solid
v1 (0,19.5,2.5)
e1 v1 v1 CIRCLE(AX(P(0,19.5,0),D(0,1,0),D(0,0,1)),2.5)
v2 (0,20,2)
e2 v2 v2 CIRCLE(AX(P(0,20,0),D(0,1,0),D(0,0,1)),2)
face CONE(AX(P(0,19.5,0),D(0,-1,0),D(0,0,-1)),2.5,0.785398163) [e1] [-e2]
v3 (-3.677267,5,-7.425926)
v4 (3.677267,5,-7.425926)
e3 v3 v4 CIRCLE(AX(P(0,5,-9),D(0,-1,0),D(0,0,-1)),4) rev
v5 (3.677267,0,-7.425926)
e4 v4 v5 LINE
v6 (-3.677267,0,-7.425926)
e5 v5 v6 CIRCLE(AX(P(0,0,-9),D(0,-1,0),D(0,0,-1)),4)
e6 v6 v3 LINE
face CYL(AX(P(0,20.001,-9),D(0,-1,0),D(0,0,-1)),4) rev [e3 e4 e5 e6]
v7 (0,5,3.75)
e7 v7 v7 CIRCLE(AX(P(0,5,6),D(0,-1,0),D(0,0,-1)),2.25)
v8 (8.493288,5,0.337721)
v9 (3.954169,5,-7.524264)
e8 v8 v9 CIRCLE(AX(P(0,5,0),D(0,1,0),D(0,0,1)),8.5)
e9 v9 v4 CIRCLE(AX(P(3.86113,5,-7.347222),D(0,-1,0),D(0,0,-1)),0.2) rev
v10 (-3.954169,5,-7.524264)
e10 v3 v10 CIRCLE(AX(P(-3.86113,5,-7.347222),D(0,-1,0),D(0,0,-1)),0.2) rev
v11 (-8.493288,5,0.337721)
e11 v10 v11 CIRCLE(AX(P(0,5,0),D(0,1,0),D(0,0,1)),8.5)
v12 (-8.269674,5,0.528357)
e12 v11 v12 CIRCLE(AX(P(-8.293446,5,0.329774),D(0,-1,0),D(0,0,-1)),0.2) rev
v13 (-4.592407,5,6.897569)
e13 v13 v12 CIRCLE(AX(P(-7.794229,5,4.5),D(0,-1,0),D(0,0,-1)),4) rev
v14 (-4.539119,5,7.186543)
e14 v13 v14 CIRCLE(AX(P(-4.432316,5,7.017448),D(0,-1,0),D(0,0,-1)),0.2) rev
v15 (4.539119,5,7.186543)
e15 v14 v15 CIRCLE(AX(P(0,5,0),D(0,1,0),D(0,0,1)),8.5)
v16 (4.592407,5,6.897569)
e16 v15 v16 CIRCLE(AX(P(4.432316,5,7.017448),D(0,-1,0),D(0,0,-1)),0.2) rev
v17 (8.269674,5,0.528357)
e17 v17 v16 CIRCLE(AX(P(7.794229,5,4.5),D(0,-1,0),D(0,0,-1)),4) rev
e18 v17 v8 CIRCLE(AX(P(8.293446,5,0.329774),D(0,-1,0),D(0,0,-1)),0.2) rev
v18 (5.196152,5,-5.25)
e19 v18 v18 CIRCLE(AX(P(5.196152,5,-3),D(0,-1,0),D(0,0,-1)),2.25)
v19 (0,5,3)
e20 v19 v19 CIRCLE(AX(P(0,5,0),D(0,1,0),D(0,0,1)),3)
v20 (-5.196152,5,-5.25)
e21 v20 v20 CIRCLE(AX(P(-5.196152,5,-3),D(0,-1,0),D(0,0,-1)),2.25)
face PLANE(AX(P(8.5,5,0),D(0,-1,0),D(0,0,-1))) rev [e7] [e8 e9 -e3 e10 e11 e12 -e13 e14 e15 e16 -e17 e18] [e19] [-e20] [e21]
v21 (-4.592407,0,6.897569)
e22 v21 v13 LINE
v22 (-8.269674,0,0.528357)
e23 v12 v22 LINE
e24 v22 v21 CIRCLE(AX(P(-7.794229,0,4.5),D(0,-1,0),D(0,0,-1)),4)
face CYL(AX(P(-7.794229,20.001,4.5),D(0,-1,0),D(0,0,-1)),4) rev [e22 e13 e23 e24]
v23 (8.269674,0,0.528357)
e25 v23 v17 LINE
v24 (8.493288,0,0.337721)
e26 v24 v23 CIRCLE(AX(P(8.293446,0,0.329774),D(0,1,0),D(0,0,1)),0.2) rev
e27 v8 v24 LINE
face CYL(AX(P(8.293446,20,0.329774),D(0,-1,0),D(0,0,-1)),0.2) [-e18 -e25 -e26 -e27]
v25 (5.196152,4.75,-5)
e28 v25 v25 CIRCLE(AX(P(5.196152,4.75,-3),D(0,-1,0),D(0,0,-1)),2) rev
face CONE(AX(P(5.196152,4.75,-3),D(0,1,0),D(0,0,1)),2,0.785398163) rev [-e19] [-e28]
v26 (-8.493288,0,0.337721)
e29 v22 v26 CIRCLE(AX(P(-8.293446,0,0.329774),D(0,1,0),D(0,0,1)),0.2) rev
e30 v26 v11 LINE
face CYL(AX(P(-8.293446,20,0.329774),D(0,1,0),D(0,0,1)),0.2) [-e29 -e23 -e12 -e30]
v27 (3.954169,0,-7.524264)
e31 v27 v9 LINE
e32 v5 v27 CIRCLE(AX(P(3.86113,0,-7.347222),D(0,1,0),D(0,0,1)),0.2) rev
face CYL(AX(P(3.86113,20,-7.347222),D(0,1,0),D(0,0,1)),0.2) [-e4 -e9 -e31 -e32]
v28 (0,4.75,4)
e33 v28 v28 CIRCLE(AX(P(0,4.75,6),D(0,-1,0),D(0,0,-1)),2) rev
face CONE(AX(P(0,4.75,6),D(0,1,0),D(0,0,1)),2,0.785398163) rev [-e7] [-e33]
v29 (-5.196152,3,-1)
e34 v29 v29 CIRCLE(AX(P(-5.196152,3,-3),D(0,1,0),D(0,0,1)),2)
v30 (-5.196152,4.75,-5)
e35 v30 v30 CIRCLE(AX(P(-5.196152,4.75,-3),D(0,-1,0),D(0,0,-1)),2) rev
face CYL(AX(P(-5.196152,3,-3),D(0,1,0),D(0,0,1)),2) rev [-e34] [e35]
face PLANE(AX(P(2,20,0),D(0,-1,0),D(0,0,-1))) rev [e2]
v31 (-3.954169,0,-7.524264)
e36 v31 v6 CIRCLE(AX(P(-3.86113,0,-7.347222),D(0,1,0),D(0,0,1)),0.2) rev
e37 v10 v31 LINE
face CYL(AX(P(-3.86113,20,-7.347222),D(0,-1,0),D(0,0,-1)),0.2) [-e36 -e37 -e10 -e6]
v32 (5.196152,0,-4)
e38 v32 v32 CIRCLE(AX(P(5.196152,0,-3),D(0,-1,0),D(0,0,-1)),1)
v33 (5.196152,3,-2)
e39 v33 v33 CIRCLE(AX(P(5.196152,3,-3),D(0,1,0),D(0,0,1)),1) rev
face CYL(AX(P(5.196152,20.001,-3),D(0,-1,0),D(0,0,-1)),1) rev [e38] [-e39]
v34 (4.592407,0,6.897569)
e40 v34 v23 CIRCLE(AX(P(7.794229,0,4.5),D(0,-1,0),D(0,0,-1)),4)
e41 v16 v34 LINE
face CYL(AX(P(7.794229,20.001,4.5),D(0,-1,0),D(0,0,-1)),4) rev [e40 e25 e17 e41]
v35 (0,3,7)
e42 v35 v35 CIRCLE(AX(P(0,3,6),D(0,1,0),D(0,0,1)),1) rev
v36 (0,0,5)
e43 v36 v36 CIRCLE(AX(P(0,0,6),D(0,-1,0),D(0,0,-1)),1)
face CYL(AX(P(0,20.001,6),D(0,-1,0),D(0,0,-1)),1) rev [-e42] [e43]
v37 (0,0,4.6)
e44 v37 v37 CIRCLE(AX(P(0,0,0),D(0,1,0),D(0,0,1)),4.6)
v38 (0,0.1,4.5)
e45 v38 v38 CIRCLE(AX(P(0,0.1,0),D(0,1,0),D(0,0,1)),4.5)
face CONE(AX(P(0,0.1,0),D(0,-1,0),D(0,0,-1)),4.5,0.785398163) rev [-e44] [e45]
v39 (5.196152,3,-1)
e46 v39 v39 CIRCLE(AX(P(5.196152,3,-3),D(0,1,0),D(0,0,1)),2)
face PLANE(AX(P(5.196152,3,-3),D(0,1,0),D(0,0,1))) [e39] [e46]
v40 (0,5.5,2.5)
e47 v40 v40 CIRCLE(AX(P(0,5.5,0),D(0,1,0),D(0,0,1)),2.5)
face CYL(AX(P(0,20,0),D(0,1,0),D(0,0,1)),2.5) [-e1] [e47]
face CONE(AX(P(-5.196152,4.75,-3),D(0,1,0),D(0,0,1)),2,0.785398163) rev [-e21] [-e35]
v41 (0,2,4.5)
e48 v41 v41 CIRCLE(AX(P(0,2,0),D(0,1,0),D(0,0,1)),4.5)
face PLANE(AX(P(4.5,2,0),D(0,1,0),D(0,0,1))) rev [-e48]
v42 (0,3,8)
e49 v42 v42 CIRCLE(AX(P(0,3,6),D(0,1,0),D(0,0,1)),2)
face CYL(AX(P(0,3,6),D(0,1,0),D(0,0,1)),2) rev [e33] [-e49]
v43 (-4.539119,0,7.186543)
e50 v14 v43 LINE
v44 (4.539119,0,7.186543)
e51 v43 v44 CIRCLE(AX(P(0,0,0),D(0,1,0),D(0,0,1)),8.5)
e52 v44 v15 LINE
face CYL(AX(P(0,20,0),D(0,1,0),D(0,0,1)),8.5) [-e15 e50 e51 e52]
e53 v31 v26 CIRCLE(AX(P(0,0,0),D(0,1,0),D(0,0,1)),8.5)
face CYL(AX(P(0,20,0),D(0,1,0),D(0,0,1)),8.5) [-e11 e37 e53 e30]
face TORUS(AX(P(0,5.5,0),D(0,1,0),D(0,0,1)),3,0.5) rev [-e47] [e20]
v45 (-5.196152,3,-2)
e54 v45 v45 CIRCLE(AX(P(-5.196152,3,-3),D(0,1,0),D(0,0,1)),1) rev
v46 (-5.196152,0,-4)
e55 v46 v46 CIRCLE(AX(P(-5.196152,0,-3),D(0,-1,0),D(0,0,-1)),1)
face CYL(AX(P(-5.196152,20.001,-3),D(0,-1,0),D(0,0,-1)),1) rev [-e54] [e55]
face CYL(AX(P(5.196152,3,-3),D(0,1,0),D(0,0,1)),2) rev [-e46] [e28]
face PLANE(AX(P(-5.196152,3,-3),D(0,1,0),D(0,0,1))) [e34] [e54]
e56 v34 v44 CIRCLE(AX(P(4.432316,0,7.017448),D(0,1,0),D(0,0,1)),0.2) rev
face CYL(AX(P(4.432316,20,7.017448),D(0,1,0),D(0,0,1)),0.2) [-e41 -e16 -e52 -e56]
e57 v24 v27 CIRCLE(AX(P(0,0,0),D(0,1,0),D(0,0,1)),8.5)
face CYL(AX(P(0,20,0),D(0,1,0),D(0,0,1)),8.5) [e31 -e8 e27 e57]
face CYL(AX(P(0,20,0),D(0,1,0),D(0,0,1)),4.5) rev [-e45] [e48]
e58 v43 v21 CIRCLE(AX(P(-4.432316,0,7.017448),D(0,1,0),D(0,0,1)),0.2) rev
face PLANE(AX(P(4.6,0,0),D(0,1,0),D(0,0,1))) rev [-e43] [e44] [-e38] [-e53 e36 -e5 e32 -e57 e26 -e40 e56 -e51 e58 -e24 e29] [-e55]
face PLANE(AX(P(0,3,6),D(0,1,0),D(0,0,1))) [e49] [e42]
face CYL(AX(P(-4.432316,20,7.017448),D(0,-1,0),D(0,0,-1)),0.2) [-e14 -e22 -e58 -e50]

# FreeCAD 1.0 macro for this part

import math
import FreeCAD as App
import Part
import Sketcher

V = App.Vector
Q = App.Units.Quantity


def edges_at(feature, points):
    """Names of the edges that pass closest to the given points."""
    edges = feature.Shape.Edges
    near = lambda p: min(range(len(edges)), key=lambda i: edges[i].distToShape(Part.Vertex(*p))[0])
    return sorted({f"Edge{near(p) + 1}" for p in points})

doc = App.newDocument("Part")
params = doc.addObject("Spreadsheet::Sheet", "Params")
for row, (alias, value) in enumerate([
    ("sketch1_radius", "0.5 mm"),
    ("sketch1_width", "2 mm"),
    ("sketch1_height", "5 mm"),
    ("sketch1_height2", "14 mm"),
    ("sketch1_height3", "18 mm"),
    ("revolution_angle", "360 deg"),
    ("sketch2_diameter", "8 mm"),
    ("pocket1_length", "5 mm"),
    ("sketch3_diameter", "2 mm"),
    ("sketch4_diameter", "2 mm"),
    ("sketch5_diameter", "8 mm"),
    ("pocket4_length", "5 mm"),
    ("sketch6_diameter", "2 mm"),
    ("sketch7_diameter", "8 mm"),
    ("pocket6_length", "5 mm"),
    ("fillet_radius", "0.2 mm"),
    ("sketch8_diameter", "4 mm"),
    ("pocket7_length", "2 mm"),
    ("chamfer_size", "0.25 mm"),
], start=1):
    params.set(f"A{row}", alias)
    params.set(f"B{row}", "=" + value)
    params.setAlias(f"B{row}", alias)

body = doc.addObject("PartDesign::Body", "Body")

sketch1 = doc.addObject("Sketcher::SketchObject", "Sketch")
body.addObject(sketch1)
sketch1.AttachmentSupport = (doc.XY_Plane, [""])
sketch1.MapMode = "FlatFace"
sketch1.addGeometry(Part.LineSegment(V(4.6, 0, 0), V(8.5, 0, 0)), False)
sketch1.addGeometry(Part.LineSegment(V(8.5, 0, 0), V(8.5, 5, 0)), False)
sketch1.addGeometry(Part.LineSegment(V(8.5, 5, 0), V(3, 5, 0)), False)
sketch1.addGeometry(Part.ArcOfCircle(Part.Circle(V(3, 5.5, 0), V(0, 0, 1), 0.5), math.radians(180), math.radians(270)), False)
sketch1.addGeometry(Part.LineSegment(V(2.5, 5.5, 0), V(2.5, 19.5, 0)), False)
sketch1.addGeometry(Part.LineSegment(V(2.5, 19.5, 0), V(2, 20, 0)), False)
sketch1.addGeometry(Part.LineSegment(V(2, 20, 0), V(0, 20, 0)), False)
sketch1.addGeometry(Part.LineSegment(V(0, 20, 0), V(0, 2, 0)), False)
sketch1.addGeometry(Part.LineSegment(V(0, 2, 0), V(4.5, 2, 0)), False)
sketch1.addGeometry(Part.LineSegment(V(4.5, 2, 0), V(4.5, 0.1, 0)), False)
sketch1.addGeometry(Part.LineSegment(V(4.5, 0.1, 0), V(4.6, 0, 0)), False)
sketch1.addConstraint(Sketcher.Constraint("Coincident", 0, 2, 1, 1))
sketch1.addConstraint(Sketcher.Constraint("Coincident", 1, 2, 2, 1))
sketch1.addConstraint(Sketcher.Constraint("Tangent", 2, 2, 3, 2))
sketch1.addConstraint(Sketcher.Constraint("Tangent", 3, 1, 4, 1))
sketch1.addConstraint(Sketcher.Constraint("Coincident", 4, 2, 5, 1))
sketch1.addConstraint(Sketcher.Constraint("Coincident", 5, 2, 6, 1))
sketch1.addConstraint(Sketcher.Constraint("Coincident", 6, 2, 7, 1))
sketch1.addConstraint(Sketcher.Constraint("Coincident", 7, 2, 8, 1))
sketch1.addConstraint(Sketcher.Constraint("Coincident", 8, 2, 9, 1))
sketch1.addConstraint(Sketcher.Constraint("Coincident", 9, 2, 10, 1))
sketch1.addConstraint(Sketcher.Constraint("Coincident", 10, 2, 0, 1))
sketch1.addConstraint(Sketcher.Constraint("Horizontal", 0))
sketch1.addConstraint(Sketcher.Constraint("Vertical", 1))
sketch1.addConstraint(Sketcher.Constraint("Horizontal", 2))
sketch1.addConstraint(Sketcher.Constraint("Vertical", 4))
sketch1.addConstraint(Sketcher.Constraint("Horizontal", 6))
sketch1.addConstraint(Sketcher.Constraint("Vertical", 7))
sketch1.addConstraint(Sketcher.Constraint("Horizontal", 8))
sketch1.addConstraint(Sketcher.Constraint("Vertical", 9))
sketch1.addConstraint(Sketcher.Constraint("PointOnObject", 0, 2, -1))
sketch1.addConstraint(Sketcher.Constraint("PointOnObject", 6, 2, -2))
sketch1.addConstraint(Sketcher.Constraint("Parallel", 5, 10))
sketch1.addConstraint(Sketcher.Constraint("Radius", 3, Q("0.5 mm")))
sketch1.addConstraint(Sketcher.Constraint("DistanceX", 6, 2, 6, 1, Q("2 mm")))
sketch1.addConstraint(Sketcher.Constraint("DistanceY", 1, 1, 1, 2, Q("5 mm")))
sketch1.addConstraint(Sketcher.Constraint("DistanceY", 4, 1, 4, 2, Q("14 mm")))
sketch1.addConstraint(Sketcher.Constraint("DistanceY", 7, 2, 7, 1, Q("18 mm")))
sketch1.addConstraint(Sketcher.Constraint("Angle", 5, Q("135 deg")))
sketch1.addConstraint(Sketcher.Constraint("DistanceX", 0, 1, 0, 2, Q("3.9 mm")))
sketch1.addConstraint(Sketcher.Constraint("DistanceX", 2, 2, 2, 1, Q("5.5 mm")))
sketch1.addConstraint(Sketcher.Constraint("DistanceX", 8, 1, 8, 2, Q("4.5 mm")))
sketch1.addConstraint(Sketcher.Constraint("DistanceX", -1, 1, 3, 3, Q("3 mm")))
sketch1.setExpression("Constraints[22]", "Params.sketch1_radius")
sketch1.setExpression("Constraints[23]", "Params.sketch1_width")
sketch1.setExpression("Constraints[24]", "Params.sketch1_height")
sketch1.setExpression("Constraints[25]", "Params.sketch1_height2")
sketch1.setExpression("Constraints[26]", "Params.sketch1_height3")
revolution = doc.addObject("PartDesign::Revolution", "Revolution")
body.addObject(revolution)
revolution.Profile = sketch1
revolution.ReferenceAxis = (sketch1, ["V_Axis"])
revolution.setExpression("Angle", "Params.revolution_angle")

sketch2 = doc.addObject("Sketcher::SketchObject", "Sketch001")
body.addObject(sketch2)
sketch2.AttachmentSupport = (doc.XZ_Plane, [""])
sketch2.MapMode = "FlatFace"
sketch2.addGeometry(Part.Circle(V(7.8, 4.5, 0), V(0, 0, 1), 4), False)
sketch2.addConstraint(Sketcher.Constraint("Diameter", 0, Q("8 mm")))
sketch2.addConstraint(Sketcher.Constraint("DistanceY", -1, 1, 0, 3, Q("4.5 mm")))
sketch2.addConstraint(Sketcher.Constraint("DistanceX", -1, 1, 0, 3, Q("7.794229 mm")))
sketch2.setExpression("Constraints[0]", "Params.sketch2_diameter")
pocket1 = doc.addObject("PartDesign::Pocket", "Pocket")
body.addObject(pocket1)
pocket1.Profile = sketch2
pocket1.setExpression("Length", "Params.pocket1_length")

sketch3 = doc.addObject("Sketcher::SketchObject", "Sketch002")
body.addObject(sketch3)
sketch3.AttachmentSupport = (doc.XZ_Plane, [""])
sketch3.MapMode = "FlatFace"
sketch3.addGeometry(Part.Circle(V(0, 6, 0), V(0, 0, 1), 1), False)
sketch3.addConstraint(Sketcher.Constraint("PointOnObject", 0, 3, -2))
sketch3.addConstraint(Sketcher.Constraint("Diameter", 0, Q("2 mm")))
sketch3.addConstraint(Sketcher.Constraint("DistanceY", -1, 1, 0, 3, Q("6 mm")))
sketch3.setExpression("Constraints[1]", "Params.sketch3_diameter")
pocket2 = doc.addObject("PartDesign::Pocket", "Pocket001")
body.addObject(pocket2)
pocket2.Profile = sketch3
pocket2.Type = "UpToFirst"

sketch4 = doc.addObject("Sketcher::SketchObject", "Sketch003")
body.addObject(sketch4)
sketch4.AttachmentSupport = (doc.XZ_Plane, [""])
sketch4.MapMode = "FlatFace"
sketch4.addGeometry(Part.Circle(V(5.2, -3, 0), V(0, 0, 1), 1), False)
sketch4.addConstraint(Sketcher.Constraint("Diameter", 0, Q("2 mm")))
sketch4.addConstraint(Sketcher.Constraint("DistanceY", 0, 3, -1, 1, Q("3 mm")))
sketch4.addConstraint(Sketcher.Constraint("DistanceX", -1, 1, 0, 3, Q("5.196152 mm")))
sketch4.setExpression("Constraints[0]", "Params.sketch4_diameter")
pocket3 = doc.addObject("PartDesign::Pocket", "Pocket002")
body.addObject(pocket3)
pocket3.Profile = sketch4
pocket3.Type = "UpToFirst"

sketch5 = doc.addObject("Sketcher::SketchObject", "Sketch004")
body.addObject(sketch5)
sketch5.AttachmentSupport = (doc.XZ_Plane, [""])
sketch5.MapMode = "FlatFace"
sketch5.addGeometry(Part.Circle(V(0, -9, 0), V(0, 0, 1), 4), False)
sketch5.addConstraint(Sketcher.Constraint("PointOnObject", 0, 3, -2))
sketch5.addConstraint(Sketcher.Constraint("Diameter", 0, Q("8 mm")))
sketch5.addConstraint(Sketcher.Constraint("DistanceY", 0, 3, -1, 1, Q("9 mm")))
sketch5.setExpression("Constraints[1]", "Params.sketch5_diameter")
pocket4 = doc.addObject("PartDesign::Pocket", "Pocket003")
body.addObject(pocket4)
pocket4.Profile = sketch5
pocket4.setExpression("Length", "Params.pocket4_length")

sketch6 = doc.addObject("Sketcher::SketchObject", "Sketch005")
body.addObject(sketch6)
sketch6.AttachmentSupport = (doc.XZ_Plane, [""])
sketch6.MapMode = "FlatFace"
sketch6.addGeometry(Part.Circle(V(-5.2, -3, 0), V(0, 0, 1), 1), False)
sketch6.addConstraint(Sketcher.Constraint("Diameter", 0, Q("2 mm")))
sketch6.addConstraint(Sketcher.Constraint("DistanceY", 0, 3, -1, 1, Q("3 mm")))
sketch6.addConstraint(Sketcher.Constraint("DistanceX", 0, 3, -1, 1, Q("5.196152 mm")))
sketch6.setExpression("Constraints[0]", "Params.sketch6_diameter")
pocket5 = doc.addObject("PartDesign::Pocket", "Pocket004")
body.addObject(pocket5)
pocket5.Profile = sketch6
pocket5.Type = "UpToFirst"

sketch7 = doc.addObject("Sketcher::SketchObject", "Sketch006")
body.addObject(sketch7)
sketch7.AttachmentSupport = (doc.XZ_Plane, [""])
sketch7.MapMode = "FlatFace"
sketch7.addGeometry(Part.Circle(V(-7.8, 4.5, 0), V(0, 0, 1), 4), False)
sketch7.addConstraint(Sketcher.Constraint("Diameter", 0, Q("8 mm")))
sketch7.addConstraint(Sketcher.Constraint("DistanceY", -1, 1, 0, 3, Q("4.5 mm")))
sketch7.addConstraint(Sketcher.Constraint("DistanceX", 0, 3, -1, 1, Q("7.794229 mm")))
sketch7.setExpression("Constraints[0]", "Params.sketch7_diameter")
pocket6 = doc.addObject("PartDesign::Pocket", "Pocket005")
body.addObject(pocket6)
pocket6.Profile = sketch7
pocket6.setExpression("Length", "Params.pocket6_length")
doc.recompute()

fillet = doc.addObject("PartDesign::Fillet", "Fillet")
body.addObject(fillet)
fillet.Base = (pocket6, edges_at(pocket6, [
    (8.482, 2.5, 0.559),
    (4.725, 2.5, 7.066),
    (-3.756, 2.5, -7.625),
    (3.756, 2.5, -7.625),
    (-4.725, 2.5, 7.066),
    (-8.482, 2.5, 0.559),
]))
fillet.setExpression("Radius", "Params.fillet_radius")

sketch8 = doc.addObject("Sketcher::SketchObject", "Sketch007")
body.addObject(sketch8)
sketch8.AttachmentSupport = (doc.XZ_Plane, [""])
sketch8.MapMode = "FlatFace"
sketch8.AttachmentOffset = App.Placement(V(0, 0, -5), App.Rotation())
sketch8.addGeometry(Part.Circle(V(0, 6, 0), V(0, 0, 1), 2), False)
sketch8.addGeometry(Part.Circle(V(-5.2, -3, 0), V(0, 0, 1), 2), False)
sketch8.addGeometry(Part.Circle(V(5.2, -3, 0), V(0, 0, 1), 2), False)
sketch8.addConstraint(Sketcher.Constraint("Equal", 0, 1))
sketch8.addConstraint(Sketcher.Constraint("Equal", 1, 2))
sketch8.addConstraint(Sketcher.Constraint("Symmetric", 1, 3, 2, 3, -2))
sketch8.addConstraint(Sketcher.Constraint("PointOnObject", 0, 3, -2))
sketch8.addConstraint(Sketcher.Constraint("Diameter", 0, Q("4 mm")))
sketch8.addConstraint(Sketcher.Constraint("DistanceY", -1, 1, 0, 3, Q("6 mm")))
sketch8.addConstraint(Sketcher.Constraint("DistanceY", 1, 3, -1, 1, Q("3 mm")))
sketch8.addConstraint(Sketcher.Constraint("DistanceX", 1, 3, -1, 1, Q("5.196152 mm")))
sketch8.setExpression("Constraints[4]", "Params.sketch8_diameter")
pocket7 = doc.addObject("PartDesign::Pocket", "Pocket006")
body.addObject(pocket7)
pocket7.Profile = sketch8
pocket7.setExpression("Length", "Params.pocket7_length")
pocket7.Reversed = True
doc.recompute()

chamfer = doc.addObject("PartDesign::Chamfer", "Chamfer")
body.addObject(chamfer)
chamfer.Base = (pocket7, edges_at(pocket7, [(-5.196, 5, -5), (5.196, 5, -5), (0, 5, 4)]))
chamfer.setExpression("Size", "Params.chamfer_size")

doc.recompute()
